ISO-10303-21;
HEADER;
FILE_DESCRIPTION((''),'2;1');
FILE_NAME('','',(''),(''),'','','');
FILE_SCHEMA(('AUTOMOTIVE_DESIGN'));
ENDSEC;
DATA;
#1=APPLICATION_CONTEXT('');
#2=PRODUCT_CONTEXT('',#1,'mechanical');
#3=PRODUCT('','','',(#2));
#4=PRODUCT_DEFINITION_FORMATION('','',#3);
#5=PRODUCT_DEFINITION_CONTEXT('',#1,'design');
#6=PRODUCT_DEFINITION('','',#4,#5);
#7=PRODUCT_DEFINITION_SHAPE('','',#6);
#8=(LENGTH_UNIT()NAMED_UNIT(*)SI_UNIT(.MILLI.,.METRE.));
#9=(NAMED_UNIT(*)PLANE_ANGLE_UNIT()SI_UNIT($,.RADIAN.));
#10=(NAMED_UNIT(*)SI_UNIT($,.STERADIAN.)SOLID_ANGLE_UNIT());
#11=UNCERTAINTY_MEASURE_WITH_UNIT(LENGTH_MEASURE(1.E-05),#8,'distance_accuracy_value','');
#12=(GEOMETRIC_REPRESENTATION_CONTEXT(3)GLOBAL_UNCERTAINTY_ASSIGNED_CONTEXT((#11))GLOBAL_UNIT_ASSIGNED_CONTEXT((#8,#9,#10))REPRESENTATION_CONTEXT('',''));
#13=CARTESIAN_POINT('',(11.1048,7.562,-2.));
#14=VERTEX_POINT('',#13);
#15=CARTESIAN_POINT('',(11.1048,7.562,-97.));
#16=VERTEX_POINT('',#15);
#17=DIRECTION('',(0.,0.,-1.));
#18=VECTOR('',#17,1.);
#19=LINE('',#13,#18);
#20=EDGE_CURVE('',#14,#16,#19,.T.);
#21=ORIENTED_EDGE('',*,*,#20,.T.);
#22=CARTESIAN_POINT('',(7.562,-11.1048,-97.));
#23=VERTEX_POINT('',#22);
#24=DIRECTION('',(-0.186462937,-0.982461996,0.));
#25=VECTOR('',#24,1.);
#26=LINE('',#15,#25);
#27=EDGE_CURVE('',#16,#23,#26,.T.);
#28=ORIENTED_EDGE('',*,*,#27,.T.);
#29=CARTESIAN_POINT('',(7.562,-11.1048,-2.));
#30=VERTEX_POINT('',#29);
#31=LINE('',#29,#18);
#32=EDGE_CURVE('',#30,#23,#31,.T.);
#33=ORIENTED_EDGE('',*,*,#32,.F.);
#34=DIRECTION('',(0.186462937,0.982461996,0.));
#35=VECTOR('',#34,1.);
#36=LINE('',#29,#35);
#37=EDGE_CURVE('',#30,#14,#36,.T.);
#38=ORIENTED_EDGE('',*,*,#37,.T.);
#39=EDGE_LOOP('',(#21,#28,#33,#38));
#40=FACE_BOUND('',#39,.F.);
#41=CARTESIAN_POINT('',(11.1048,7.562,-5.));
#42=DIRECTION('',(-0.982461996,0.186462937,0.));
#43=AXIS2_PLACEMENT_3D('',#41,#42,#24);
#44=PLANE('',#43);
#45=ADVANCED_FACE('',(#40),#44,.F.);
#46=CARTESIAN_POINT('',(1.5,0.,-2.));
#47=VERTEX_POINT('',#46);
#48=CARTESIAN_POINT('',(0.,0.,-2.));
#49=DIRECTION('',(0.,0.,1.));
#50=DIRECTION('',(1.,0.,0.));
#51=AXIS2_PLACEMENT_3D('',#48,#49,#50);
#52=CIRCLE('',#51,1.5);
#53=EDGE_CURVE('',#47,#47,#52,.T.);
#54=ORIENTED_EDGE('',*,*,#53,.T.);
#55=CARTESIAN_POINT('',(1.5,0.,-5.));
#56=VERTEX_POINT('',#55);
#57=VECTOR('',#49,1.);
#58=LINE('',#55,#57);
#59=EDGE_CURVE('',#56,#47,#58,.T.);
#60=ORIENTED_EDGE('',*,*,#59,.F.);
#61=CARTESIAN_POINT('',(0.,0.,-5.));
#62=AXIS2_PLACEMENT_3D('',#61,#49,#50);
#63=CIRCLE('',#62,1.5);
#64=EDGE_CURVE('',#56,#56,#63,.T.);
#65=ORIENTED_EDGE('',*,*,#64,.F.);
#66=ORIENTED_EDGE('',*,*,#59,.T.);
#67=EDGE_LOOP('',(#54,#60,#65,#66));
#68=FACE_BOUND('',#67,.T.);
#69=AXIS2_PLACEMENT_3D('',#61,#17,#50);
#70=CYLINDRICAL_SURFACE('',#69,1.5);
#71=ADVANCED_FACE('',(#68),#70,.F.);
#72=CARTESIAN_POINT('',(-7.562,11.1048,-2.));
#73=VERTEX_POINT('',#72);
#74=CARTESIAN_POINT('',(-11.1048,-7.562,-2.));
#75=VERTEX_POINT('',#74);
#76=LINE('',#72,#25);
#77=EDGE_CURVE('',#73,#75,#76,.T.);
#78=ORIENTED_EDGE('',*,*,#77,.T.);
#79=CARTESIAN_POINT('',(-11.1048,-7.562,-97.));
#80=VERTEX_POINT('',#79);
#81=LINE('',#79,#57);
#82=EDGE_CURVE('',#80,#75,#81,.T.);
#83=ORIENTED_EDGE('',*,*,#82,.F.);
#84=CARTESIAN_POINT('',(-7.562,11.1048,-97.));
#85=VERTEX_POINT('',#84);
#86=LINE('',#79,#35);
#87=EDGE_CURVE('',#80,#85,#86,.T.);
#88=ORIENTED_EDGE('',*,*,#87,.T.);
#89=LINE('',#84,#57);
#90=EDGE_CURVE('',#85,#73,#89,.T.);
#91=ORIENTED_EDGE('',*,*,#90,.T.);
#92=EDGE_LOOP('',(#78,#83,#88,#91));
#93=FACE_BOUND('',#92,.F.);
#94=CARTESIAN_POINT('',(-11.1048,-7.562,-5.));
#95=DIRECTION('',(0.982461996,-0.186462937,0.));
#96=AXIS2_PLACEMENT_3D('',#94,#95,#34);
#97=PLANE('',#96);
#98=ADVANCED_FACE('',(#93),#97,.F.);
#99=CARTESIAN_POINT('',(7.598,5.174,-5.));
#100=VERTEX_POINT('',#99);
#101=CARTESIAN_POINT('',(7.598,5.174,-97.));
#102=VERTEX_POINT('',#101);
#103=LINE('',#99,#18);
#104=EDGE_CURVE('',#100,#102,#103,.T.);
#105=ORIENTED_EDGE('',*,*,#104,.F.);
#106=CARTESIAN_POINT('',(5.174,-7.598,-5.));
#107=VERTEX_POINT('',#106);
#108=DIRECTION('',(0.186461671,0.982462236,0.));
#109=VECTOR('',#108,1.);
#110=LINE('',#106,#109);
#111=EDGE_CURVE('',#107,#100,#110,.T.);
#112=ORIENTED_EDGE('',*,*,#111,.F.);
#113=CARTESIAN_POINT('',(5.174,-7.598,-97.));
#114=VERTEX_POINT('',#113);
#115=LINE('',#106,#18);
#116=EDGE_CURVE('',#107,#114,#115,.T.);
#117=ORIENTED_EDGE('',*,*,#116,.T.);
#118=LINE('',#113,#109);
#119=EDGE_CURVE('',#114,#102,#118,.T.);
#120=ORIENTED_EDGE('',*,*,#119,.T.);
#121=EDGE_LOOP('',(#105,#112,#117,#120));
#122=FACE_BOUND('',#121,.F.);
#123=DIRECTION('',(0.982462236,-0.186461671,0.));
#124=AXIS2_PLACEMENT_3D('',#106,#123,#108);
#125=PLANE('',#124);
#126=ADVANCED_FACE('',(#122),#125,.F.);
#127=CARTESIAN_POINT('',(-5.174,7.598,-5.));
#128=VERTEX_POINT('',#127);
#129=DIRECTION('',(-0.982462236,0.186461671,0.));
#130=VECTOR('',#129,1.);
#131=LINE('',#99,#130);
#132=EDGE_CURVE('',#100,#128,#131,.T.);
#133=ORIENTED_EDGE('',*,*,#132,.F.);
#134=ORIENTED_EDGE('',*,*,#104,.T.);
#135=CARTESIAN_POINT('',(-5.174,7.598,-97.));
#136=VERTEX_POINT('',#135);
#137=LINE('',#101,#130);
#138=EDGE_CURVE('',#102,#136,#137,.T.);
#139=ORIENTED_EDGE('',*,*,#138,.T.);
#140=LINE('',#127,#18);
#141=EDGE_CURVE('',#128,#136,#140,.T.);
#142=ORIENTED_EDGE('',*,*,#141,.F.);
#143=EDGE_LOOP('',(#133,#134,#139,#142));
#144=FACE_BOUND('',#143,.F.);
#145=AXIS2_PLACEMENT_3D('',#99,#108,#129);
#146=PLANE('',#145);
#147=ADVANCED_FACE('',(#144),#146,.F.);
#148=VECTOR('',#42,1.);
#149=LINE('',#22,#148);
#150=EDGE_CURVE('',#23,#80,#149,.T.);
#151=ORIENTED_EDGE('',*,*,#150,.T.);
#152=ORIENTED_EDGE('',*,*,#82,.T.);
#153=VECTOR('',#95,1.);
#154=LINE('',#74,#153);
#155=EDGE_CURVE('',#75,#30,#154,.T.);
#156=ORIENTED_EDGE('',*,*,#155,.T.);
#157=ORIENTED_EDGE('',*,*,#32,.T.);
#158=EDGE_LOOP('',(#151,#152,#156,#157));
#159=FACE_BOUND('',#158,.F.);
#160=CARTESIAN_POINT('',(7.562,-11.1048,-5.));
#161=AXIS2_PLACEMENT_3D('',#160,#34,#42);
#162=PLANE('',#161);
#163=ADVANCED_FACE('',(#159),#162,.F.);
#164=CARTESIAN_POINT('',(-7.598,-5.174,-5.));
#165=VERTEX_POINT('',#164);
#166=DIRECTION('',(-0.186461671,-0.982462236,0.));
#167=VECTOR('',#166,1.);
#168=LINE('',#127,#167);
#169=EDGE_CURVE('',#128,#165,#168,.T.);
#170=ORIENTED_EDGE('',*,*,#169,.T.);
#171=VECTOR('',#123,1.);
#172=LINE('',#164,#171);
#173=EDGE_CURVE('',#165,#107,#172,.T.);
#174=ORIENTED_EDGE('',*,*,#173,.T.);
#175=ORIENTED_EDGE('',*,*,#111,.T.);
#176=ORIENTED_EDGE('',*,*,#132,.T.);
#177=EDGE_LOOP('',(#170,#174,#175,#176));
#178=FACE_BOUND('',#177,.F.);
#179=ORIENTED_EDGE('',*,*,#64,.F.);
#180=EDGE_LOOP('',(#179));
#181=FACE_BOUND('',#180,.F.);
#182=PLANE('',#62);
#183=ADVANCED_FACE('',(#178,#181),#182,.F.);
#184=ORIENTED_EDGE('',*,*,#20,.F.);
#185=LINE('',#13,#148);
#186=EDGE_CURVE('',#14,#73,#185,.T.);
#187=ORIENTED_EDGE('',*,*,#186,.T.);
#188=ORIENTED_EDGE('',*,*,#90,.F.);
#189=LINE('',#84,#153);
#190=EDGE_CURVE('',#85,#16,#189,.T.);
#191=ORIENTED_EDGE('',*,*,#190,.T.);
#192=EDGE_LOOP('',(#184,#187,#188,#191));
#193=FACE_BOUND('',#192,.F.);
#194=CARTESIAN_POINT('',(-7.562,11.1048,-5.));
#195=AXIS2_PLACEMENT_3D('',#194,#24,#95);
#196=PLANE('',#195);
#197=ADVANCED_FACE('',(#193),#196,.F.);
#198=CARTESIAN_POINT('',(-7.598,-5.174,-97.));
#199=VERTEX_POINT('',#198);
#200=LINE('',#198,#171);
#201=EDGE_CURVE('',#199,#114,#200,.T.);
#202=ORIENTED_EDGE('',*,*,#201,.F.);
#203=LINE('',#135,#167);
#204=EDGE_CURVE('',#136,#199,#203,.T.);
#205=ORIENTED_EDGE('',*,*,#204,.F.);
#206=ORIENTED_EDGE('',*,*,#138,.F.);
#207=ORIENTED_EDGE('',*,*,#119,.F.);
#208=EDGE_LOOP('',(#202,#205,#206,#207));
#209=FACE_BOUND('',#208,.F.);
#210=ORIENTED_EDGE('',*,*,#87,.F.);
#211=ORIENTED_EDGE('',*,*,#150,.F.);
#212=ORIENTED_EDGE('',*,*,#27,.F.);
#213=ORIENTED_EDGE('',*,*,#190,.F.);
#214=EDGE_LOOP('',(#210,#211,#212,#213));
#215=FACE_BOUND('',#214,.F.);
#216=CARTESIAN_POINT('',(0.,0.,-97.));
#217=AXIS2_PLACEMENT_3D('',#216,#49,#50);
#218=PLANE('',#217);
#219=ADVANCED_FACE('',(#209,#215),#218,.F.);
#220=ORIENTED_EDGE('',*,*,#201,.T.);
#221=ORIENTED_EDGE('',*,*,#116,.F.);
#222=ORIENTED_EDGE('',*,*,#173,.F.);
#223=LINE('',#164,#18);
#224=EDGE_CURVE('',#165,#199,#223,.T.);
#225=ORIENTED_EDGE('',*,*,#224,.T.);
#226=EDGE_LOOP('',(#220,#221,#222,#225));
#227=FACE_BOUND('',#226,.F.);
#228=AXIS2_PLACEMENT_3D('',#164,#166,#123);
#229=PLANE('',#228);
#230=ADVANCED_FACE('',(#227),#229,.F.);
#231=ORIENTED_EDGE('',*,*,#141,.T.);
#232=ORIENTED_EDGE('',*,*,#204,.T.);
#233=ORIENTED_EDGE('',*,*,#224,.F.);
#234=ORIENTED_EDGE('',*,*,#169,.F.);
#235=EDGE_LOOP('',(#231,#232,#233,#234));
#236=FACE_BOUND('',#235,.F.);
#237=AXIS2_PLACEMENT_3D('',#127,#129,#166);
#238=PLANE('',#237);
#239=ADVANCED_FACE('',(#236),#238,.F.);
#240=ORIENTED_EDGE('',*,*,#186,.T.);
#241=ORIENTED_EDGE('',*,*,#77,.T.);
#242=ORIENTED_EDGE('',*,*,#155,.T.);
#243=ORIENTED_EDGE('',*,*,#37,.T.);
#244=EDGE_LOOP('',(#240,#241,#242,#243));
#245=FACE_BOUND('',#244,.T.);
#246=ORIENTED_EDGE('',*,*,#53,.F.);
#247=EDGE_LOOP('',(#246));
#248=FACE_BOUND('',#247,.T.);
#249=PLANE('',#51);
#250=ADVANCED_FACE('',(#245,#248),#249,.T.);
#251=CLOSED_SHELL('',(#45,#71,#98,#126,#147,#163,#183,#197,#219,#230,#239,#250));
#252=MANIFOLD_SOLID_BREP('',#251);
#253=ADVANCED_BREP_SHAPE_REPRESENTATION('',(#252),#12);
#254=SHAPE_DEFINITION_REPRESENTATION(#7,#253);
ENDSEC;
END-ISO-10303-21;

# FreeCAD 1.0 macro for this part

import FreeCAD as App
import Part
import Sketcher

V = App.Vector
Q = App.Units.Quantity


def add_polygon(sketch, points):
    """Adds a closed chain of lines whose ends are joined by coincident constraints."""
    first, n = sketch.GeometryCount, len(points)
    for a, b in zip(points, points[1:] + points[:1]):
        sketch.addGeometry(Part.LineSegment(App.Vector(*a, 0), App.Vector(*b, 0)), False)
    for i in range(n):
        sketch.addConstraint(Sketcher.Constraint("Coincident", first + i, 2, first + (i + 1) % n, 1))

doc = App.newDocument("Part")
body = doc.addObject("PartDesign::Body", "Body")

# Sketch on XY plane
sketch1 = body.newObject("Sketcher::SketchObject", "Sketch")
sketch1.AttachmentSupport = (doc.getObject("XY_Plane"), [""])
sketch1.MapMode = "FlatFace"
sketch1.AttachmentOffset = App.Placement(V(0, 0, -5), App.Rotation())
add_polygon(sketch1, [(11, 8), (-8, 11), (-11, -8), (8, -11)])  # lines 0-3
add_polygon(sketch1, [(-5, 8), (8, 5), (5, -8), (-8, -5)])  # lines 4-7
sketch1.addConstraint(Sketcher.Constraint("Symmetric", 0, 2, 2, 2, -1, 1))
sketch1.addConstraint(Sketcher.Constraint("Symmetric", 1, 2, 3, 2, -1, 1))
sketch1.addConstraint(Sketcher.Constraint("Symmetric", 4, 2, 6, 2, -1, 1))
sketch1.addConstraint(Sketcher.Constraint("Symmetric", 5, 2, 7, 2, -1, 1))
sketch1.addConstraint(Sketcher.Constraint("Perpendicular", 0, 1))
sketch1.addConstraint(Sketcher.Constraint("Perpendicular", 3, 4))
sketch1.addConstraint(Sketcher.Constraint("Perpendicular", 4, 5))
sketch1.addConstraint(Sketcher.Constraint("Equal", 0, 1))
sketch1.addConstraint(Sketcher.Constraint("Equal", 4, 5))
sketch1.addConstraint(Sketcher.Constraint("Distance", 0, Q("19 mm")))
sketch1.addConstraint(Sketcher.Constraint("Distance", 4, Q("13 mm")))
sketch1.addConstraint(Sketcher.Constraint("DistanceX", 0, 2, 4, 2, Q("15.16 mm")))
pad1 = body.newObject("PartDesign::Pad", "Pad")
pad1.Profile = sketch1
pad1.Length = 92
pad1.Reversed = True

# Sketch on XY plane
sketch2 = body.newObject("Sketcher::SketchObject", "Sketch001")
sketch2.AttachmentSupport = (doc.getObject("XY_Plane"), [""])
sketch2.MapMode = "FlatFace"
sketch2.AttachmentOffset = App.Placement(V(0, 0, -5), App.Rotation())
add_polygon(sketch2, [(-7.6, 11.1), (-11.1, -7.6), (7.6, -11.1), (11.1, 7.6)])  # lines 0-3
sketch2.addGeometry(Part.Circle(V(0, 0, 0), V(0, 0, 1), 1.5), False)  # 4
sketch2.addConstraint(Sketcher.Constraint("Coincident", 4, 3, -1, 1))
sketch2.addConstraint(Sketcher.Constraint("Symmetric", 0, 2, 2, 2, -1, 1))
sketch2.addConstraint(Sketcher.Constraint("Symmetric", 1, 2, 3, 2, -1, 1))
sketch2.addConstraint(Sketcher.Constraint("Perpendicular", 0, 1))
sketch2.addConstraint(Sketcher.Constraint("Equal", 0, 1))
sketch2.addConstraint(Sketcher.Constraint("Diameter", 4, Q("3 mm")))
sketch2.addConstraint(Sketcher.Constraint("Distance", 0, Q("19 mm")))
sketch2.addConstraint(Sketcher.Constraint("DistanceY", 0, 2, -1, 1, Q("7.562 mm")))
pad2 = body.newObject("PartDesign::Pad", "Pad001")
pad2.Profile = sketch2
pad2.Length = 3

doc.recompute()
